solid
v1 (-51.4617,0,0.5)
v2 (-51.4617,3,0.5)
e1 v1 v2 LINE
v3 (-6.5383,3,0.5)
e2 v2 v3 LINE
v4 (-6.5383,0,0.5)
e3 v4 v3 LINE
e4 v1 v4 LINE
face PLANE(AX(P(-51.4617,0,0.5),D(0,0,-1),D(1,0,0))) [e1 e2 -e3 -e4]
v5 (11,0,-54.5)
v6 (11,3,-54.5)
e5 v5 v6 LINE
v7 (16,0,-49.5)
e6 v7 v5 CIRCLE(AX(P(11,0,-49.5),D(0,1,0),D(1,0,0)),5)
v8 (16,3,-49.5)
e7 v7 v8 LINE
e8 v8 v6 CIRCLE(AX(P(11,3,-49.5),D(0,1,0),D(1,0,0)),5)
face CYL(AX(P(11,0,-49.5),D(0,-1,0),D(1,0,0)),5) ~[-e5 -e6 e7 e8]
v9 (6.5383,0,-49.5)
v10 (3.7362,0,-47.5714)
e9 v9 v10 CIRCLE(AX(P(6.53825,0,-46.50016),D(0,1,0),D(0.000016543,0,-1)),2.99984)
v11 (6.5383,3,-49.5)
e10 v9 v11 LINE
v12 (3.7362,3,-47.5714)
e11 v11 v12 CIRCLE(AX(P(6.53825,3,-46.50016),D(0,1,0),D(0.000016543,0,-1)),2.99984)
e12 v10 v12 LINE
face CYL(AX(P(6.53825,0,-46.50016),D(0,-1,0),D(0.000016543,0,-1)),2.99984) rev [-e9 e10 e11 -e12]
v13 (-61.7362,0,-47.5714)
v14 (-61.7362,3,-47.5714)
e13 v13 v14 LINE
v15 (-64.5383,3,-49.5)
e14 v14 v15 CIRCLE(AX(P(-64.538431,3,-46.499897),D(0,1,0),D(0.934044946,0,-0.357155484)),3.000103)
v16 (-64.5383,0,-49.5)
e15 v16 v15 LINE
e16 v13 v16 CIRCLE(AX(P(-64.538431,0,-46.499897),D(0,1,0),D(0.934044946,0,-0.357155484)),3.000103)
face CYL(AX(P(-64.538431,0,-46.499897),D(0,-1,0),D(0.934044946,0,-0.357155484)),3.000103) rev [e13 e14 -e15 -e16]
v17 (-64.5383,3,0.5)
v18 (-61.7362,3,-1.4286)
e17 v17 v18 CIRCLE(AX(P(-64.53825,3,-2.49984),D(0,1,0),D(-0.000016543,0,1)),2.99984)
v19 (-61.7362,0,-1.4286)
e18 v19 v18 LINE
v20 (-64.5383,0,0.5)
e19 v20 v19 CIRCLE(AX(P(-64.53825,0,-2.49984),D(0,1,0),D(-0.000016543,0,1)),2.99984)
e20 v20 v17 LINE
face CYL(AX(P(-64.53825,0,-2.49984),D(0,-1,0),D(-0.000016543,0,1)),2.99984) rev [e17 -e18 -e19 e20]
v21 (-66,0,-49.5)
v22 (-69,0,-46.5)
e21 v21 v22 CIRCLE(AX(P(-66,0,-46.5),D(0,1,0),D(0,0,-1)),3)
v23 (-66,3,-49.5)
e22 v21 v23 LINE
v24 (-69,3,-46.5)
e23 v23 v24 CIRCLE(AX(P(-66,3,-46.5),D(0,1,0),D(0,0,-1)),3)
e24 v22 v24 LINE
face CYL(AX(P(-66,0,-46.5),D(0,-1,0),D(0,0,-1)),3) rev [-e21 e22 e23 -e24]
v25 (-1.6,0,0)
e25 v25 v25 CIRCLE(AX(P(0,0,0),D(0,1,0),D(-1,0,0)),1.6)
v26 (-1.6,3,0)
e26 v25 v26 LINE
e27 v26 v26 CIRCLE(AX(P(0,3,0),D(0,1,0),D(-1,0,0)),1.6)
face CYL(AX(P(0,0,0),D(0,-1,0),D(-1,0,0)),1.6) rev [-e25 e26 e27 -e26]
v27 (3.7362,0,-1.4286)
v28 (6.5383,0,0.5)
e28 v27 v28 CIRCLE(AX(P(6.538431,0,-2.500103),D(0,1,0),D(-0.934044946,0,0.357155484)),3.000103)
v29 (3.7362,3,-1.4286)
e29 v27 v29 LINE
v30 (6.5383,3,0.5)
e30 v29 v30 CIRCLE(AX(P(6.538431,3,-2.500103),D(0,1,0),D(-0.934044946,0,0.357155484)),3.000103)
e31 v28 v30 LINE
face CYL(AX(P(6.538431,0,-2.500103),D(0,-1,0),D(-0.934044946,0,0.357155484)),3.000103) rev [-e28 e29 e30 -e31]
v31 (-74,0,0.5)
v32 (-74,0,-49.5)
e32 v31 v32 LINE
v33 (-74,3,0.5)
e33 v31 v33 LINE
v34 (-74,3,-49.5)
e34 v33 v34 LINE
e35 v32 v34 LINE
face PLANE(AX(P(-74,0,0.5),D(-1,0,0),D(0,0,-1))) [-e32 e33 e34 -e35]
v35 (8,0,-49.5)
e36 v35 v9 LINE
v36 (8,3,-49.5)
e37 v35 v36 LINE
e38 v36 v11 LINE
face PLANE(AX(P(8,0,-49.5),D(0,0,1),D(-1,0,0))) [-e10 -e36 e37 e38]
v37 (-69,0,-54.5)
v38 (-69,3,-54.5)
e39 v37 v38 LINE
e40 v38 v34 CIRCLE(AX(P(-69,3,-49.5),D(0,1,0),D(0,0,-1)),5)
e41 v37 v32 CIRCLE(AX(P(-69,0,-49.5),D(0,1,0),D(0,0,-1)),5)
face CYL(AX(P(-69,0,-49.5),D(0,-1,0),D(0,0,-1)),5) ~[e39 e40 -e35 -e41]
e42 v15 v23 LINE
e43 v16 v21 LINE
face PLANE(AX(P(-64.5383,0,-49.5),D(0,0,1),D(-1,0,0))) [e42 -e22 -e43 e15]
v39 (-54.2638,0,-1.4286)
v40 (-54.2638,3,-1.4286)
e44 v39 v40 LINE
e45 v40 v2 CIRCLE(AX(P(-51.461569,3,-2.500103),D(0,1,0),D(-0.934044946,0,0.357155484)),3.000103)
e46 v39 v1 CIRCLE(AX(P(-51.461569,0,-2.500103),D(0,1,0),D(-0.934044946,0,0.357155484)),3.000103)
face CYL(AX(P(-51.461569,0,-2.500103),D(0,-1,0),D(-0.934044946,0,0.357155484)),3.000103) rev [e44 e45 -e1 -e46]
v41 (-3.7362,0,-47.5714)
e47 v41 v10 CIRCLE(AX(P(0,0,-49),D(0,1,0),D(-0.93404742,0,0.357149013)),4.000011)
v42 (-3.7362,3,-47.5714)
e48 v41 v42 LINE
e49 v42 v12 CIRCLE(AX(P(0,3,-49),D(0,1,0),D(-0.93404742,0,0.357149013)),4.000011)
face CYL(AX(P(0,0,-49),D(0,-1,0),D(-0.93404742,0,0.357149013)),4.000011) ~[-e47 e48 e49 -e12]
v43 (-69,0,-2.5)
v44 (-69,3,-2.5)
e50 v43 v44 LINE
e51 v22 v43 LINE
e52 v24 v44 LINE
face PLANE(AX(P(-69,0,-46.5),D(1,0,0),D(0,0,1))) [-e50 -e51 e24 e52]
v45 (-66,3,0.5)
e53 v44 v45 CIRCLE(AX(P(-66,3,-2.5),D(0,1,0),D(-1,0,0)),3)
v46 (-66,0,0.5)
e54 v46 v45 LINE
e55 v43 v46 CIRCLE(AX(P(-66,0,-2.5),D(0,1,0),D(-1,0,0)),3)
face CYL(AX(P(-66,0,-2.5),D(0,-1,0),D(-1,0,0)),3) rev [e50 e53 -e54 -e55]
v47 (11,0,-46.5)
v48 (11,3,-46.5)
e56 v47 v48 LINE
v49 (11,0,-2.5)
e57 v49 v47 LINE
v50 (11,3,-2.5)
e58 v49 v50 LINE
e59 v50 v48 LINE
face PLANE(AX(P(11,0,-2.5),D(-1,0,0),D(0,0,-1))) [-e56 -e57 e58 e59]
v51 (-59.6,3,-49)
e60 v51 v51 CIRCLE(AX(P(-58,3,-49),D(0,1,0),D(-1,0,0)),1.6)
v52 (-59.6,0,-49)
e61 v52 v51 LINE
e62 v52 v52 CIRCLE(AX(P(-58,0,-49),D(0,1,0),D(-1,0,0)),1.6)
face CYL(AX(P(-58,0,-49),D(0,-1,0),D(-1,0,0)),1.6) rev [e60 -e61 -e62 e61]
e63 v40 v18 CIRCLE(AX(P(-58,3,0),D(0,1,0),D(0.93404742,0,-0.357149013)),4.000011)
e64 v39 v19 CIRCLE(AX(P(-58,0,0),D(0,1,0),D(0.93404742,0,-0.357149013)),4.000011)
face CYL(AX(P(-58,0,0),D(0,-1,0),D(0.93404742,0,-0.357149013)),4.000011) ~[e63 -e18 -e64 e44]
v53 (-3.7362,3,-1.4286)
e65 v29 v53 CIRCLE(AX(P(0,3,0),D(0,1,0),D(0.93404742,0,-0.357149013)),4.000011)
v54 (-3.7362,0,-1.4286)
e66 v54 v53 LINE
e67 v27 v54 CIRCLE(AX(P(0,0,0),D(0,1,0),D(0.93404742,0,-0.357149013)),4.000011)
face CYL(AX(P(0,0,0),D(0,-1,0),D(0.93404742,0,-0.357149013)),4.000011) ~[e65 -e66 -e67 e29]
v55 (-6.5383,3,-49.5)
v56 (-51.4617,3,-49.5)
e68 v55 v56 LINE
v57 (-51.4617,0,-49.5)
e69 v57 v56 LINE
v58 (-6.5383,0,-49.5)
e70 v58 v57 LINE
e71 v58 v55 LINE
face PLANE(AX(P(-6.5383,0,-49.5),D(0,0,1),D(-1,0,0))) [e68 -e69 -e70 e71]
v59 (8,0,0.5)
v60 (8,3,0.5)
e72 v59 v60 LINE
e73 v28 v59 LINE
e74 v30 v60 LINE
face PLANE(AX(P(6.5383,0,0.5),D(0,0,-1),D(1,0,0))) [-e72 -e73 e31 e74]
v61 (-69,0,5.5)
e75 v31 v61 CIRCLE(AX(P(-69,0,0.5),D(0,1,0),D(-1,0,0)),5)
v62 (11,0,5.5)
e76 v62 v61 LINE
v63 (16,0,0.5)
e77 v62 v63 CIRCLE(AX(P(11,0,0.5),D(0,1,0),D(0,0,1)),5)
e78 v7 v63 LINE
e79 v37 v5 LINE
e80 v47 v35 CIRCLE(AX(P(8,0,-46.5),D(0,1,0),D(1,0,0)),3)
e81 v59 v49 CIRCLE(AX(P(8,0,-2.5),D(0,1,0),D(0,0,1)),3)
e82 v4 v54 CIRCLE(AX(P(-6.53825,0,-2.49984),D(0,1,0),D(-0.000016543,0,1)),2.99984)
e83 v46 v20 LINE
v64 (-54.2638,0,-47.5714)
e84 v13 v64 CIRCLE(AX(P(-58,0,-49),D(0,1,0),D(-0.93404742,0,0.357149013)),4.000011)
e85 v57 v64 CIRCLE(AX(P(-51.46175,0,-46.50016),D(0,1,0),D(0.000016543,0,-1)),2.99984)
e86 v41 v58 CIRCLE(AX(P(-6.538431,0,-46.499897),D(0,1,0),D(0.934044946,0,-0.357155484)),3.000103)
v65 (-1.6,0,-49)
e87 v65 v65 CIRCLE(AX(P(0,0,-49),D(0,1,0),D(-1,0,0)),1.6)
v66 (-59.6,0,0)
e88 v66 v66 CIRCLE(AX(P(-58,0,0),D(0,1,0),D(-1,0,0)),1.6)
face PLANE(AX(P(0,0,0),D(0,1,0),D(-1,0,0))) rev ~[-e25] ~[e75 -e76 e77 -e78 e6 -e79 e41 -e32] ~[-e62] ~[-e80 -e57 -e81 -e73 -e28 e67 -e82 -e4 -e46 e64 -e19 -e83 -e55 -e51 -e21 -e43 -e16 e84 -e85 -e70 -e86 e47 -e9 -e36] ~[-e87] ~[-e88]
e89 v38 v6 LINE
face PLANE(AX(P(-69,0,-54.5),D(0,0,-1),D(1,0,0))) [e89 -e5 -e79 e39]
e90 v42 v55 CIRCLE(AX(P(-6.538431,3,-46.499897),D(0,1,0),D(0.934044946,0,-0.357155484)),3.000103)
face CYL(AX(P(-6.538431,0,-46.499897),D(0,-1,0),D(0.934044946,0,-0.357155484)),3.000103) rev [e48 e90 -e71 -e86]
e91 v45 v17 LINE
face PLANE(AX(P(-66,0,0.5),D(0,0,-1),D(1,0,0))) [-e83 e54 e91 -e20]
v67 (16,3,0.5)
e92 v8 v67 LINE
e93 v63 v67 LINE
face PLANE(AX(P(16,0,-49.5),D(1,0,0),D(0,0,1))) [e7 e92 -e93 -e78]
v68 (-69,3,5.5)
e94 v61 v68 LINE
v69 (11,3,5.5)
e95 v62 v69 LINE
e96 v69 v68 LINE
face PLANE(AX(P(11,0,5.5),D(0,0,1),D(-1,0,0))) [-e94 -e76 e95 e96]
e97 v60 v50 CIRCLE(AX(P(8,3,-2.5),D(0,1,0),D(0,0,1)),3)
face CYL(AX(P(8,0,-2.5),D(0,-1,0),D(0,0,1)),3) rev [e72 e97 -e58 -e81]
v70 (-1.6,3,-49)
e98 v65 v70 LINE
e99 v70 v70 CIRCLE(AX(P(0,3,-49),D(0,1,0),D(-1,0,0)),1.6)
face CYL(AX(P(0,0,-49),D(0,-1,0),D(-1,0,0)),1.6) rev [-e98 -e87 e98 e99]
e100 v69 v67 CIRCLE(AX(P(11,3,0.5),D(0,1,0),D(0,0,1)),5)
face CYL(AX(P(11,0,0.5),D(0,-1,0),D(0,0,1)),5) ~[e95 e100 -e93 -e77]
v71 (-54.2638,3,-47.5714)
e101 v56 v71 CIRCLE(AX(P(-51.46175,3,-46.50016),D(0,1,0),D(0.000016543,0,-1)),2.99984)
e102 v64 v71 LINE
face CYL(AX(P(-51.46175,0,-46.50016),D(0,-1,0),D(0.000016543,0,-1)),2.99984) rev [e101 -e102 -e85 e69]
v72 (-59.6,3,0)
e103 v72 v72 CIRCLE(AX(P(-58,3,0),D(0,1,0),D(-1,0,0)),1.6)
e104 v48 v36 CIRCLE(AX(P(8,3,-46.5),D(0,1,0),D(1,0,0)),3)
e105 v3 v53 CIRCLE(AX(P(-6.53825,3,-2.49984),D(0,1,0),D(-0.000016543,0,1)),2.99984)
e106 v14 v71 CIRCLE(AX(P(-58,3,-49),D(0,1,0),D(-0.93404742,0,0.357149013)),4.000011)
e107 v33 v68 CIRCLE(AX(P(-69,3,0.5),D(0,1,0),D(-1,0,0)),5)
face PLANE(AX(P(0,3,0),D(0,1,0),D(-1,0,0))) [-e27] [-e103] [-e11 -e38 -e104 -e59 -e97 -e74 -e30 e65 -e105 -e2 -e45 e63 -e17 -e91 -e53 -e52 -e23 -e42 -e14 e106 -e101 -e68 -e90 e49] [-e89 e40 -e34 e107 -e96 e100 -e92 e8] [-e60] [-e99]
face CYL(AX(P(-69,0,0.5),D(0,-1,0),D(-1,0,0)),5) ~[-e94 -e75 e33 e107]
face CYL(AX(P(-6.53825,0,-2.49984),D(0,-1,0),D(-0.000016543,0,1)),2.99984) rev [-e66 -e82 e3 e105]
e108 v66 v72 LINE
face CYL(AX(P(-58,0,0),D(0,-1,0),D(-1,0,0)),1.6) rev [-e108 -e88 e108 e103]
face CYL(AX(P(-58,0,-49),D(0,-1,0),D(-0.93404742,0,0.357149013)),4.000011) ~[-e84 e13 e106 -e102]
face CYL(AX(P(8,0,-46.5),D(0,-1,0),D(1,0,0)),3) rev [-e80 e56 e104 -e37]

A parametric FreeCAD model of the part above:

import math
import FreeCAD as App
import Part
import Sketcher

V = App.Vector

doc = App.newDocument("Part")
params = doc.addObject("Spreadsheet::Sheet", "Params")
for row, (alias, value) in enumerate([
    ("sketch1_radius", "5 mm"),
    ("sketch1_radius2", "3 mm"),
    ("sketch1_radius3", "4 mm"),
    ("sketch1_diameter", "3.2 mm"),
    ("sketch1_height", "50 mm"),
    ("pad1_length", "3 mm"),
], start=1):
    params.set(f"A{row}", alias)
    params.set(f"B{row}", "=" + value)
    params.setAlias(f"B{row}", alias)

body = doc.addObject("PartDesign::Body", "Body")

sketch1 = body.newObject("Sketcher::SketchObject", "Sketch")
sketch1.AttachmentSupport = (doc.getObject("XZ_Plane"), [""])
sketch1.MapMode = "FlatFace"
sketch1.addGeometry([
    Part.LineSegment(V(11, -54.5, 0), V(-69, -54.5, 0)),
    Part.ArcOfCircle(Part.Circle(V(-69, -49.5, 0), V(0, 0, 1), 5), math.radians(180), math.radians(270)),
    Part.LineSegment(V(-74, -49.5, 0), V(-74, 0.5, 0)),
    Part.ArcOfCircle(Part.Circle(V(-69, 0.5, 0), V(0, 0, 1), 5), math.radians(90), math.radians(180)),
    Part.LineSegment(V(-69, 5.5, 0), V(11, 5.5, 0)),
    Part.ArcOfCircle(Part.Circle(V(11, 0.5, 0), V(0, 0, 1), 5), math.radians(0), math.radians(90)),
    Part.LineSegment(V(16, 0.5, 0), V(16, -49.5, 0)),
    Part.ArcOfCircle(Part.Circle(V(11, -49.5, 0), V(0, 0, 1), 5), math.radians(-90), math.radians(0)),
    Part.Circle(V(0, -49, 0), V(0, 0, 1), 1.6),
    Part.Circle(V(-58, -49, 0), V(0, 0, 1), 1.6),
    Part.Circle(V(0, 0, 0), V(0, 0, 1), 1.6),
    Part.LineSegment(V(6.5, -49.5, 0), V(8, -49.5, 0)),
    Part.ArcOfCircle(Part.Circle(V(8, -46.5, 0), V(0, 0, 1), 3), math.radians(-90), math.radians(0)),
    Part.LineSegment(V(11, -46.5, 0), V(11, -2.5, 0)),
    Part.ArcOfCircle(Part.Circle(V(8, -2.5, 0), V(0, 0, 1), 3), math.radians(0), math.radians(90)),
    Part.LineSegment(V(8, 0.5, 0), V(6.5, 0.5, 0)),
    Part.ArcOfCircle(Part.Circle(V(6.5, -2.5, 0), V(0, 0, 1), 3), math.radians(90), math.radians(159)),
    Part.ArcOfCircle(Part.Circle(V(0, 0, 0), V(0, 0, 1), 4), math.radians(-159), math.radians(-21)),
    Part.ArcOfCircle(Part.Circle(V(-6.5, -2.5, 0), V(0, 0, 1), 3), math.radians(21), math.radians(90)),
    Part.LineSegment(V(-6.5, 0.5, 0), V(-51.5, 0.5, 0)),
    Part.ArcOfCircle(Part.Circle(V(-51.5, -2.5, 0), V(0, 0, 1), 3), math.radians(90), math.radians(159)),
    Part.ArcOfCircle(Part.Circle(V(-58, 0, 0), V(0, 0, 1), 4), math.radians(-159), math.radians(-21)),
    Part.ArcOfCircle(Part.Circle(V(-64.5, -2.5, 0), V(0, 0, 1), 3), math.radians(21), math.radians(90)),
    Part.LineSegment(V(-64.5, 0.5, 0), V(-66, 0.5, 0)),
    Part.ArcOfCircle(Part.Circle(V(-66, -2.5, 0), V(0, 0, 1), 3), math.radians(90), math.radians(180)),
    Part.LineSegment(V(-69, -2.5, 0), V(-69, -46.5, 0)),
    Part.ArcOfCircle(Part.Circle(V(-66, -46.5, 0), V(0, 0, 1), 3), math.radians(180), math.radians(270)),
    Part.LineSegment(V(-66, -49.5, 0), V(-64.5, -49.5, 0)),
    Part.ArcOfCircle(Part.Circle(V(-64.5, -46.5, 0), V(0, 0, 1), 3), math.radians(-90), math.radians(-21)),
    Part.ArcOfCircle(Part.Circle(V(-58, -49, 0), V(0, 0, 1), 4), math.radians(21), math.radians(159)),
    Part.ArcOfCircle(Part.Circle(V(-51.5, -46.5, 0), V(0, 0, 1), 3), math.radians(-159), math.radians(-90)),
    Part.LineSegment(V(-51.5, -49.5, 0), V(-6.5, -49.5, 0)),
    Part.ArcOfCircle(Part.Circle(V(-6.5, -46.5, 0), V(0, 0, 1), 3), math.radians(-90), math.radians(-21)),
    Part.ArcOfCircle(Part.Circle(V(0, -49, 0), V(0, 0, 1), 4), math.radians(21), math.radians(159)),
    Part.ArcOfCircle(Part.Circle(V(6.5, -46.5, 0), V(0, 0, 1), 3), math.radians(-159), math.radians(-90)),
    Part.Circle(V(-58, 0, 0), V(0, 0, 1), 1.6),
], False)
sketch1.addConstraint([
    Sketcher.Constraint("Tangent", 0, 2, 1, 2),
    Sketcher.Constraint("Tangent", 1, 1, 2, 1),
    Sketcher.Constraint("Tangent", 2, 2, 3, 2),
    Sketcher.Constraint("Tangent", 3, 1, 4, 1),
    Sketcher.Constraint("Tangent", 4, 2, 5, 2),
    Sketcher.Constraint("Tangent", 5, 1, 6, 1),
    Sketcher.Constraint("Tangent", 6, 2, 7, 2),
    Sketcher.Constraint("Tangent", 7, 1, 0, 1),
    Sketcher.Constraint("Tangent", 11, 2, 12, 1),
    Sketcher.Constraint("Tangent", 12, 2, 13, 1),
    Sketcher.Constraint("Tangent", 13, 2, 14, 1),
    Sketcher.Constraint("Tangent", 14, 2, 15, 1),
    Sketcher.Constraint("Tangent", 15, 2, 16, 1),
    Sketcher.Constraint("Tangent", 16, 2, 17, 2),
    Sketcher.Constraint("Tangent", 17, 1, 18, 1),
    Sketcher.Constraint("Tangent", 18, 2, 19, 1),
    Sketcher.Constraint("Tangent", 19, 2, 20, 1),
    Sketcher.Constraint("Tangent", 20, 2, 21, 2),
    Sketcher.Constraint("Tangent", 21, 1, 22, 1),
    Sketcher.Constraint("Tangent", 22, 2, 23, 1),
    Sketcher.Constraint("Tangent", 23, 2, 24, 1),
    Sketcher.Constraint("Tangent", 24, 2, 25, 1),
    Sketcher.Constraint("Tangent", 25, 2, 26, 1),
    Sketcher.Constraint("Tangent", 26, 2, 27, 1),
    Sketcher.Constraint("Tangent", 27, 2, 28, 1),
    Sketcher.Constraint("Tangent", 28, 2, 29, 2),
    Sketcher.Constraint("Tangent", 29, 1, 30, 1),
    Sketcher.Constraint("Tangent", 30, 2, 31, 1),
    Sketcher.Constraint("Tangent", 31, 2, 32, 1),
    Sketcher.Constraint("Tangent", 32, 2, 33, 2),
    Sketcher.Constraint("Tangent", 33, 1, 34, 1),
    Sketcher.Constraint("Tangent", 34, 2, 11, 1),
    Sketcher.Constraint("Horizontal", 0),
    Sketcher.Constraint("Vertical", 2),
    Sketcher.Constraint("Horizontal", 4),
    Sketcher.Constraint("Vertical", 6),
    Sketcher.Constraint("Horizontal", 11),
    Sketcher.Constraint("Vertical", 13),
    Sketcher.Constraint("Horizontal", 15),
    Sketcher.Constraint("Horizontal", 19),
    Sketcher.Constraint("Horizontal", 23),
    Sketcher.Constraint("Vertical", 25),
    Sketcher.Constraint("Horizontal", 27),
    Sketcher.Constraint("Horizontal", 31),
    Sketcher.Constraint("Coincident", 10, 3, -1, 1),
    Sketcher.Constraint("Coincident", 17, 3, -1, 1),
    Sketcher.Constraint("Coincident", 29, 3, 9, 3),
    Sketcher.Constraint("Coincident", 33, 3, 8, 3),
    Sketcher.Constraint("Coincident", 35, 3, 21, 3),
    Sketcher.Constraint("Equal", 1, 3),
    Sketcher.Constraint("Equal", 3, 5),
    Sketcher.Constraint("Equal", 5, 7),
    Sketcher.Constraint("Equal", 8, 9),
    Sketcher.Constraint("Equal", 9, 10),
    Sketcher.Constraint("Equal", 12, 14),
    Sketcher.Constraint("Equal", 14, 16),
    Sketcher.Constraint("Equal", 16, 18),
    Sketcher.Constraint("Equal", 18, 20),
    Sketcher.Constraint("Equal", 17, 21),
    Sketcher.Constraint("Equal", 20, 22),
    Sketcher.Constraint("Equal", 22, 24),
    Sketcher.Constraint("Equal", 24, 26),
    Sketcher.Constraint("Equal", 26, 28),
    Sketcher.Constraint("Equal", 21, 29),
    Sketcher.Constraint("Equal", 28, 30),
    Sketcher.Constraint("Equal", 30, 32),
    Sketcher.Constraint("Equal", 29, 33),
    Sketcher.Constraint("Equal", 32, 34),
    Sketcher.Constraint("Equal", 10, 35),
    Sketcher.Constraint("Symmetric", 32, 3, 34, 3, -2),
    Sketcher.Constraint("PointOnObject", 21, 3, -1),
    Sketcher.Constraint("Horizontal", 8, 3, 9, 3),
    Sketcher.Constraint("Horizontal", 16, 3, 18, 3),
    Sketcher.Constraint("Horizontal", 20, 3, 22, 3),
    Sketcher.Constraint("Horizontal", 12, 3, 26, 3),
    Sketcher.Constraint("Horizontal", 6, 2, 11, 2),
    Sketcher.Constraint("Horizontal", 5, 1, 14, 2),
    Sketcher.Constraint("Vertical", 9, 3, 21, 3),
    Sketcher.Constraint("Vertical", 22, 3, 28, 3),
    Sketcher.Constraint("Vertical", 7, 1, 12, 2),
    Sketcher.Constraint("Vertical", 3, 1, 24, 2),
    Sketcher.Constraint("Equal", 15, 23),
    Sketcher.Constraint("Radius", 1, 5.0),
    Sketcher.Constraint("Radius", 12, 3.0),
    Sketcher.Constraint("Radius", 17, 4.0),
    Sketcher.Constraint("Diameter", 8, 3.2),
    Sketcher.Constraint("DistanceY", 8, 3, -1, 1, 49.0),
    Sketcher.Constraint("DistanceX", 9, 3, -1, 1, 58.0),
    Sketcher.Constraint("DistanceX", -1, 1, 12, 3, 8.0),
    Sketcher.Constraint("DistanceY", 2, 1, 2, 2, 50.0),
])
sketch1.setExpression("Constraints[82]", "Params.sketch1_radius")
sketch1.setExpression("Constraints[83]", "Params.sketch1_radius2")
sketch1.setExpression("Constraints[84]", "Params.sketch1_radius3")
sketch1.setExpression("Constraints[85]", "Params.sketch1_diameter")
sketch1.setExpression("Constraints[89]", "Params.sketch1_height")
pad1 = body.newObject("PartDesign::Pad", "Pad")
pad1.Profile = sketch1
pad1.setExpression("Length", "Params.pad1_length")
pad1.Reversed = True

doc.recompute()
